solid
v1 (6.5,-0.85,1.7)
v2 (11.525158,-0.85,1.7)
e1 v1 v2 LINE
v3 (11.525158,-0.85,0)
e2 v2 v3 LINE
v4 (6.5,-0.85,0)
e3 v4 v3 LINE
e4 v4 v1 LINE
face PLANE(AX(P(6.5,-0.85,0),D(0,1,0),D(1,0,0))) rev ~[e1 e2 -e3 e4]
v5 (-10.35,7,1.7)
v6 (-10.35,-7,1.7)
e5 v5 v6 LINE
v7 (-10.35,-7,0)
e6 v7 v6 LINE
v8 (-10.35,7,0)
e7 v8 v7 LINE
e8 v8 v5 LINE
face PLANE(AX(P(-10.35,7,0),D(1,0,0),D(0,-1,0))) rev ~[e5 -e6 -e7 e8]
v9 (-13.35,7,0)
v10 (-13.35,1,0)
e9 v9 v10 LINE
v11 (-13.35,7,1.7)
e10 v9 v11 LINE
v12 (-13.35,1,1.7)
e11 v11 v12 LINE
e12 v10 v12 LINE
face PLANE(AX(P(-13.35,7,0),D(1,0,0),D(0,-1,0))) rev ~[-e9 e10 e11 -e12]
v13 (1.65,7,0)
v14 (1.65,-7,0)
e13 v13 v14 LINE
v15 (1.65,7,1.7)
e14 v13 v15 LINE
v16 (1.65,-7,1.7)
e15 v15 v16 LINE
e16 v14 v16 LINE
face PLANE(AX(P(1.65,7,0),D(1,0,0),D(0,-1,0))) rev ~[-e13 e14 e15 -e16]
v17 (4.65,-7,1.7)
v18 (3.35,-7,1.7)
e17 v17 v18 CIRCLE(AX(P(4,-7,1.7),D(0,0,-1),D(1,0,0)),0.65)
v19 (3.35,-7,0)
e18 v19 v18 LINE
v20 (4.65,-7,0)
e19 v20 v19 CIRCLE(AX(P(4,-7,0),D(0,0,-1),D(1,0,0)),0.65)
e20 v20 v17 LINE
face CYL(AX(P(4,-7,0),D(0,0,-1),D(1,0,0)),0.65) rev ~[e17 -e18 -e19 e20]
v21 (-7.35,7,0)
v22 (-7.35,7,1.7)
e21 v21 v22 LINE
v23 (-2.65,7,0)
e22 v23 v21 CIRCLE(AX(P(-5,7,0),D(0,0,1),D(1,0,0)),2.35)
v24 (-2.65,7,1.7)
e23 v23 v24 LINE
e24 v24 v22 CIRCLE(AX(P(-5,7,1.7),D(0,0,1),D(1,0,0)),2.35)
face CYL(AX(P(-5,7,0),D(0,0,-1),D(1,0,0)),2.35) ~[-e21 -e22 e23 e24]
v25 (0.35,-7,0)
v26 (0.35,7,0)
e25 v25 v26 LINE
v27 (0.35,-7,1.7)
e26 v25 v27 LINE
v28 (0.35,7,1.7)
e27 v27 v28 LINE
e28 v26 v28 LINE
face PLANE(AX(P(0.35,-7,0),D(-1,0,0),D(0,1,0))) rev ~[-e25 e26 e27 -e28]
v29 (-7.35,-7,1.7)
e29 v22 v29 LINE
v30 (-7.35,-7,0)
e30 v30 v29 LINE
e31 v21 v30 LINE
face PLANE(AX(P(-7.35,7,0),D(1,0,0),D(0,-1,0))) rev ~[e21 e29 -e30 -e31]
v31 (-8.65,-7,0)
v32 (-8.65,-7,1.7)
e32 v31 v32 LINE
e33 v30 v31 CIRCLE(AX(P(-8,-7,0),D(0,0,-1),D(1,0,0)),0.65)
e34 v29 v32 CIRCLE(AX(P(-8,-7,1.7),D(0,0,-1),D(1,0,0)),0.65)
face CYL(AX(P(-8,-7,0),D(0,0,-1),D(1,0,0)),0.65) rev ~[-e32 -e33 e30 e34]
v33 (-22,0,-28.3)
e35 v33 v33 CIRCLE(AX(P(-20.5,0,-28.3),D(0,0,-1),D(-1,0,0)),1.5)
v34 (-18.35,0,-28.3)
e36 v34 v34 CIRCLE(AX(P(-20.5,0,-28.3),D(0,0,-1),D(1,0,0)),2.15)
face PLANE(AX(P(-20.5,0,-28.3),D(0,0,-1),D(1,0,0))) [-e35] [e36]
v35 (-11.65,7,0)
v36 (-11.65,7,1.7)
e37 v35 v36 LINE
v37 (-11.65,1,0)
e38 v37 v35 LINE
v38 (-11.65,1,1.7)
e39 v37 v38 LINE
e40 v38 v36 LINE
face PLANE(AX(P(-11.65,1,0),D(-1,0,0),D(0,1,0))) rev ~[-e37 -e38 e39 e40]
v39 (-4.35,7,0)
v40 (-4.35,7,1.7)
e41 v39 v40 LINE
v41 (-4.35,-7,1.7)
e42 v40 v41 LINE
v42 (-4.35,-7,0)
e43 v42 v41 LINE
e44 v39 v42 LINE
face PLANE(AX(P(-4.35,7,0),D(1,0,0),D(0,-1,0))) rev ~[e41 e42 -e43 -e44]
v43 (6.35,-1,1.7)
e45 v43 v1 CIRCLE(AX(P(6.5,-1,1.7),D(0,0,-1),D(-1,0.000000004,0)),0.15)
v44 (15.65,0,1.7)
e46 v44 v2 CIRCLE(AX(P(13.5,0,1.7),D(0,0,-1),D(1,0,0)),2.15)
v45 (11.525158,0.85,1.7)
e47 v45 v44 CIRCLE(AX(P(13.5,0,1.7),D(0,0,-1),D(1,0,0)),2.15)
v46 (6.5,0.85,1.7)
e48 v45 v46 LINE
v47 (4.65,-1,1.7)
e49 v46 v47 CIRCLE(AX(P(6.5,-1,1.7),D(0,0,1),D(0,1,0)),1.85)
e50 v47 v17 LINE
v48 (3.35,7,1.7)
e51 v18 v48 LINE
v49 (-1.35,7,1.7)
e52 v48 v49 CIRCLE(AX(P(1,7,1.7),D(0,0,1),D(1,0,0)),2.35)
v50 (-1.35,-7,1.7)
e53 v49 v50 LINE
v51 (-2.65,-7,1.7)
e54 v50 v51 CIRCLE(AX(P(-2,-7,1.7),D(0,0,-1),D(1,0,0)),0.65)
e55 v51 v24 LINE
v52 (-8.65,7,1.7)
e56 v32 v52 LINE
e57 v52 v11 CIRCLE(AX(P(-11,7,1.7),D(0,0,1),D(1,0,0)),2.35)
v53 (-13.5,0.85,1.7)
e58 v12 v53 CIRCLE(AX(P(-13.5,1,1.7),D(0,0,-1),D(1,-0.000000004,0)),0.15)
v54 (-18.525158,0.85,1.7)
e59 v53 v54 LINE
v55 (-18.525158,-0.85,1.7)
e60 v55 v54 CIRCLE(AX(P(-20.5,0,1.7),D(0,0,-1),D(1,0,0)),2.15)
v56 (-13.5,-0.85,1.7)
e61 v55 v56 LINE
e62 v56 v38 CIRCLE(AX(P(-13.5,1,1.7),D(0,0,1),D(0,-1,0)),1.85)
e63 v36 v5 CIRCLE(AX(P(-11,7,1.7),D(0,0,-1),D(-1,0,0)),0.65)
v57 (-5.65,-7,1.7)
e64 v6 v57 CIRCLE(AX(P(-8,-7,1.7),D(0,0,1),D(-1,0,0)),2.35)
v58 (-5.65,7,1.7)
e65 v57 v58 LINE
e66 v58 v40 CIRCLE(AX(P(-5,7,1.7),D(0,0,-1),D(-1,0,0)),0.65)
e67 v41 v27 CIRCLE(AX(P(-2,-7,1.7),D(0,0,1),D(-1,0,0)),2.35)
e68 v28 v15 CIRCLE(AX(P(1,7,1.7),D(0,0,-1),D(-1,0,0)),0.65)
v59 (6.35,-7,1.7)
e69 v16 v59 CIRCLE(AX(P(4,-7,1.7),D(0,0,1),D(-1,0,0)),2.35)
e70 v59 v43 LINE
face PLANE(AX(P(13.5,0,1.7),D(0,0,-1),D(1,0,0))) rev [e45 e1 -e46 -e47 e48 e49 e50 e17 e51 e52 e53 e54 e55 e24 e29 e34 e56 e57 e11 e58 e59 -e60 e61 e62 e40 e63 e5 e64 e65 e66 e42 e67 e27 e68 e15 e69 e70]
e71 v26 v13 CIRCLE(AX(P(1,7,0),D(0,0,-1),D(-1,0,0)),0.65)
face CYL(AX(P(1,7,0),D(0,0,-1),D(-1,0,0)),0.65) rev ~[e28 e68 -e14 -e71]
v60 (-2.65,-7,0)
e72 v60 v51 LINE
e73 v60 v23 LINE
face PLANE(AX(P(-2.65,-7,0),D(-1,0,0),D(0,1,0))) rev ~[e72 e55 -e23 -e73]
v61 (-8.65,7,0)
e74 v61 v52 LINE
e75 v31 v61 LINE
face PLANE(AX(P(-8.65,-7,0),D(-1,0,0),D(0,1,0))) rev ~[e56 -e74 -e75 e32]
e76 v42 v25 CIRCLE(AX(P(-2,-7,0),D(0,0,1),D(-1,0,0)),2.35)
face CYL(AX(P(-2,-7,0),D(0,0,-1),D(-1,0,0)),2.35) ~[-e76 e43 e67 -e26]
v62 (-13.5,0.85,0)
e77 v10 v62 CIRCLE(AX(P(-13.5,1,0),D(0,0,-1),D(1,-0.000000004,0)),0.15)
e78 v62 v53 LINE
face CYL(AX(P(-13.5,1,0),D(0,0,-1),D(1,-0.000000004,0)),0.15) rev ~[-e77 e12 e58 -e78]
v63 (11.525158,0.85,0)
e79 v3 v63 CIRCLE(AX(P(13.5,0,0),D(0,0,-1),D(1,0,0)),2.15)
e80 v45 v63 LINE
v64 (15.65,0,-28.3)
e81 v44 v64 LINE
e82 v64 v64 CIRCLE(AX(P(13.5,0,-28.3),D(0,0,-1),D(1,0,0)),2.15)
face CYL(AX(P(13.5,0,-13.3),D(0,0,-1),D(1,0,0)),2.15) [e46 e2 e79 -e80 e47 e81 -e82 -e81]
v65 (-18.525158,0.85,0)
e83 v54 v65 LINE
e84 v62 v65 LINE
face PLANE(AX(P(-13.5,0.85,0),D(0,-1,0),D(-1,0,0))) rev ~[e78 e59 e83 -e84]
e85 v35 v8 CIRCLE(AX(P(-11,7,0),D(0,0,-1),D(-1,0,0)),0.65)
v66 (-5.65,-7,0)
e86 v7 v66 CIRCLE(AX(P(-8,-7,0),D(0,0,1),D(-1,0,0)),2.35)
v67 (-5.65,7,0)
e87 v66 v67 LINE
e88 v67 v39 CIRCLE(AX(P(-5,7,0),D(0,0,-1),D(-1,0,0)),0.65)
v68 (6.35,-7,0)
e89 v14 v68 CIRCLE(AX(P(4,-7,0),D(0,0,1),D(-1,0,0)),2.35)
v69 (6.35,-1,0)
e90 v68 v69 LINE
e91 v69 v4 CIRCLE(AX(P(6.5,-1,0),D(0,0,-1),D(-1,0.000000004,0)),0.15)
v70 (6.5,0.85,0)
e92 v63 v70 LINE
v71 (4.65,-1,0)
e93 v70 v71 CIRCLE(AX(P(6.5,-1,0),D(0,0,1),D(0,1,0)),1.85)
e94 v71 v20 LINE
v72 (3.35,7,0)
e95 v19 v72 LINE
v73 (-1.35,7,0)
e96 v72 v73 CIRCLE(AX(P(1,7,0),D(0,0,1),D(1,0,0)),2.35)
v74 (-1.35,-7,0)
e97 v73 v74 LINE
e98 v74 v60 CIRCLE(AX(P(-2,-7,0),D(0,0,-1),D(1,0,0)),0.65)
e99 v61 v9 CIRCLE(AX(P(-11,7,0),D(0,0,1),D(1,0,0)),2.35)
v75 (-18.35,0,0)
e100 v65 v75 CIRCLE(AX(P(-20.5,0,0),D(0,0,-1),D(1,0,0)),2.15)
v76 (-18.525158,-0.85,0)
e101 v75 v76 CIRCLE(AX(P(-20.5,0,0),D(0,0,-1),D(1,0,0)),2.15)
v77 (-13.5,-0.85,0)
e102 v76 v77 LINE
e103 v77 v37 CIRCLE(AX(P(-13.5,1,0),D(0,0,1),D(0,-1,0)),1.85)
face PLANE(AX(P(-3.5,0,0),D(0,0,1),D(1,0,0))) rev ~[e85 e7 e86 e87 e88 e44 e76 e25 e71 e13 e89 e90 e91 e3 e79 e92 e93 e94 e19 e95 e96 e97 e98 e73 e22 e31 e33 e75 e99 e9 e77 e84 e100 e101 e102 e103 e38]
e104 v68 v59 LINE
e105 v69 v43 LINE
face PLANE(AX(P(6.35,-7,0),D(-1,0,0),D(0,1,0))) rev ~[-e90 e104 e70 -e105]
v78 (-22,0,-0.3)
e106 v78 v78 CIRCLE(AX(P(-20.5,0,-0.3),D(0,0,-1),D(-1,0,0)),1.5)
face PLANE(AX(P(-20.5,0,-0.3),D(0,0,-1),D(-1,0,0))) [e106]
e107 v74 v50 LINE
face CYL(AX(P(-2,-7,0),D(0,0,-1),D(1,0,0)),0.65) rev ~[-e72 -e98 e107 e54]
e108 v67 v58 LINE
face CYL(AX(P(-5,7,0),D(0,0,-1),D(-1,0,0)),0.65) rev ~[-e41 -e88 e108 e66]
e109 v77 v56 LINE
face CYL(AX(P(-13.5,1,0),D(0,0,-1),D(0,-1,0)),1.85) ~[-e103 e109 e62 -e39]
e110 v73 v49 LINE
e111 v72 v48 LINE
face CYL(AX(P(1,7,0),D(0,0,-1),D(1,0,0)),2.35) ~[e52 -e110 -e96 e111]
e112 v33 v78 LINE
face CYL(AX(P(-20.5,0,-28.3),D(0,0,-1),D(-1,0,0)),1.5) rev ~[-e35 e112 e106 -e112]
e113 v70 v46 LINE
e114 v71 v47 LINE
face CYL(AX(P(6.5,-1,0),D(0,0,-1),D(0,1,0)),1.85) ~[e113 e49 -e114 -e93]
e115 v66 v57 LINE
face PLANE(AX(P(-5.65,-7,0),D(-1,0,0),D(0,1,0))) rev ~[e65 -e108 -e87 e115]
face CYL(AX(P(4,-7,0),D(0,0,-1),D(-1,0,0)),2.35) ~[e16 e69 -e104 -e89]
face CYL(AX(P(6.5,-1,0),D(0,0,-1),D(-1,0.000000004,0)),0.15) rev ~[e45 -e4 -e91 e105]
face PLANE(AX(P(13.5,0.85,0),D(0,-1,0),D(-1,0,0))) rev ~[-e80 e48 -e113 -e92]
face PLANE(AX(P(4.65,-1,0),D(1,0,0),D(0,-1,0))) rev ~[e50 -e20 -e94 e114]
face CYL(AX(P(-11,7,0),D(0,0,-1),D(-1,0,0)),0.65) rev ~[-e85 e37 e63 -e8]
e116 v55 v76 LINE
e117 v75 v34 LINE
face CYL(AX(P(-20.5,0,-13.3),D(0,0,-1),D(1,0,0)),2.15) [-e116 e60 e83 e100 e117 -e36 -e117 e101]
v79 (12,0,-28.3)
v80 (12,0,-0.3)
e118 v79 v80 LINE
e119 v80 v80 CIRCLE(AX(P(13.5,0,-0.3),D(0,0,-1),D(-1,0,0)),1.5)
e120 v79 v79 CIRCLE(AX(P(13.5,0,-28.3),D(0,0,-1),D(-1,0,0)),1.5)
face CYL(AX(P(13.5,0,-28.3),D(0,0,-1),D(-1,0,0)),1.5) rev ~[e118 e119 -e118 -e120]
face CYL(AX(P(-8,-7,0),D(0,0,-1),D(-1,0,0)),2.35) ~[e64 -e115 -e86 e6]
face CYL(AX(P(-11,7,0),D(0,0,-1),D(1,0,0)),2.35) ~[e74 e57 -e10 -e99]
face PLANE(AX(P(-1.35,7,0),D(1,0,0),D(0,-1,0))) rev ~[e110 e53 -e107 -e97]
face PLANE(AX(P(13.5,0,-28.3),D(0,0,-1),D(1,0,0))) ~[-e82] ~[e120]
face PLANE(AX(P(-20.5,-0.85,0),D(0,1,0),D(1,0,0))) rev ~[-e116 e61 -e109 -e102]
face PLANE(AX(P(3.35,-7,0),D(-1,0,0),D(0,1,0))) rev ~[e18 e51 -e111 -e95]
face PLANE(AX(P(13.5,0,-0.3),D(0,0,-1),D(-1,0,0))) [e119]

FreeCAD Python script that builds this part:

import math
import FreeCAD as App
import Part
import Sketcher
from FreeCAD import Vector

doc = App.newDocument("Part")
body = doc.addObject("PartDesign::Body", "Body")

# Sketch on XY plane
sketch1 = doc.addObject("Sketcher::SketchObject", "Sketch")
body.addObject(sketch1)
sketch1.AttachmentSupport = (doc.XY_Plane, [""])
sketch1.MapMode = "FlatFace"
sketch1.addGeometry([
    Part.LineSegment(Vector(-20.5, -0.85, 0), Vector(-13.5, -0.85, 0)),  # 0
    Part.ArcOfCircle(Part.Circle(Vector(-13.5, 1, 0), Vector(0, 0, 1), 1.85), math.radians(-90), math.radians(0)),  # 1
    Part.LineSegment(Vector(-11.65, 1, 0), Vector(-11.65, 7, 0)),  # 2
    Part.ArcOfCircle(Part.Circle(Vector(-11, 7, 0), Vector(0, 0, 1), 0.65), math.radians(0), math.radians(180)),  # 3
    Part.LineSegment(Vector(-10.35, 7, 0), Vector(-10.35, -7, 0)),  # 4
    Part.ArcOfCircle(Part.Circle(Vector(-8, -7, 0), Vector(0, 0, 1), 2.35), math.radians(180), math.radians(360)),  # 5
    Part.LineSegment(Vector(-5.65, -7, 0), Vector(-5.65, 7, 0)),  # 6
    Part.ArcOfCircle(Part.Circle(Vector(-5, 7, 0), Vector(0, 0, 1), 0.65), math.radians(0), math.radians(180)),  # 7
    Part.LineSegment(Vector(-4.35, 7, 0), Vector(-4.35, -7, 0)),  # 8
    Part.ArcOfCircle(Part.Circle(Vector(-2, -7, 0), Vector(0, 0, 1), 2.35), math.radians(180), math.radians(360)),  # 9
    Part.LineSegment(Vector(0.35, -7, 0), Vector(0.35, 7, 0)),  # 10
    Part.ArcOfCircle(Part.Circle(Vector(1, 7, 0), Vector(0, 0, 1), 0.65), math.radians(0), math.radians(180)),  # 11
    Part.LineSegment(Vector(1.65, 7, 0), Vector(1.65, -7, 0)),  # 12
    Part.ArcOfCircle(Part.Circle(Vector(4, -7, 0), Vector(0, 0, 1), 2.35), math.radians(180), math.radians(360)),  # 13
    Part.LineSegment(Vector(6.35, -7, 0), Vector(6.35, -1, 0)),  # 14
    Part.ArcOfCircle(Part.Circle(Vector(6.5, -1, 0), Vector(0, 0, 1), 0.15), math.radians(90), math.radians(180)),  # 15
    Part.LineSegment(Vector(6.5, -0.85, 0), Vector(13.5, -0.85, 0)),  # 16
    Part.ArcOfCircle(Part.Circle(Vector(13.5, 0, 0), Vector(0, 0, 1), 0.85), math.radians(-90), math.radians(90)),  # 17
    Part.LineSegment(Vector(13.5, 0.85, 0), Vector(6.5, 0.85, 0)),  # 18
    Part.ArcOfCircle(Part.Circle(Vector(6.5, -1, 0), Vector(0, 0, 1), 1.85), math.radians(90), math.radians(180)),  # 19
    Part.LineSegment(Vector(4.65, -1, 0), Vector(4.65, -7, 0)),  # 20
    Part.ArcOfCircle(Part.Circle(Vector(4, -7, 0), Vector(0, 0, 1), 0.65), math.radians(180), math.radians(360)),  # 21
    Part.LineSegment(Vector(3.35, -7, 0), Vector(3.35, 7, 0)),  # 22
    Part.ArcOfCircle(Part.Circle(Vector(1, 7, 0), Vector(0, 0, 1), 2.35), math.radians(0), math.radians(180)),  # 23
    Part.LineSegment(Vector(-1.35, 7, 0), Vector(-1.35, -7, 0)),  # 24
    Part.ArcOfCircle(Part.Circle(Vector(-2, -7, 0), Vector(0, 0, 1), 0.65), math.radians(180), math.radians(360)),  # 25
    Part.LineSegment(Vector(-2.65, -7, 0), Vector(-2.65, 7, 0)),  # 26
    Part.ArcOfCircle(Part.Circle(Vector(-5, 7, 0), Vector(0, 0, 1), 2.35), math.radians(0), math.radians(180)),  # 27
    Part.LineSegment(Vector(-7.35, 7, 0), Vector(-7.35, -7, 0)),  # 28
    Part.ArcOfCircle(Part.Circle(Vector(-8, -7, 0), Vector(0, 0, 1), 0.65), math.radians(180), math.radians(360)),  # 29
    Part.LineSegment(Vector(-8.65, -7, 0), Vector(-8.65, 7, 0)),  # 30
    Part.ArcOfCircle(Part.Circle(Vector(-11, 7, 0), Vector(0, 0, 1), 2.35), math.radians(0), math.radians(180)),  # 31
    Part.LineSegment(Vector(-13.35, 7, 0), Vector(-13.35, 1, 0)),  # 32
    Part.ArcOfCircle(Part.Circle(Vector(-13.5, 1, 0), Vector(0, 0, 1), 0.15), math.radians(-90), math.radians(0)),  # 33
    Part.LineSegment(Vector(-13.5, 0.85, 0), Vector(-20.5, 0.85, 0)),  # 34
    Part.ArcOfCircle(Part.Circle(Vector(-20.5, 0, 0), Vector(0, 0, 1), 0.85), math.radians(90), math.radians(270)),  # 35
], False)
sketch1.addConstraint([
    Sketcher.Constraint("Tangent", 0, 2, 1, 1),
    Sketcher.Constraint("Tangent", 1, 2, 2, 1),
    Sketcher.Constraint("Tangent", 2, 2, 3, 2),
    Sketcher.Constraint("Tangent", 3, 1, 4, 1),
    Sketcher.Constraint("Tangent", 4, 2, 5, 1),
    Sketcher.Constraint("Tangent", 5, 2, 6, 1),
    Sketcher.Constraint("Tangent", 6, 2, 7, 2),
    Sketcher.Constraint("Tangent", 7, 1, 8, 1),
    Sketcher.Constraint("Tangent", 8, 2, 9, 1),
    Sketcher.Constraint("Tangent", 9, 2, 10, 1),
    Sketcher.Constraint("Tangent", 10, 2, 11, 2),
    Sketcher.Constraint("Tangent", 11, 1, 12, 1),
    Sketcher.Constraint("Tangent", 12, 2, 13, 1),
    Sketcher.Constraint("Tangent", 13, 2, 14, 1),
    Sketcher.Constraint("Tangent", 14, 2, 15, 2),
    Sketcher.Constraint("Tangent", 15, 1, 16, 1),
    Sketcher.Constraint("Tangent", 16, 2, 17, 1),
    Sketcher.Constraint("Tangent", 17, 2, 18, 1),
    Sketcher.Constraint("Tangent", 18, 2, 19, 1),
    Sketcher.Constraint("Tangent", 19, 2, 20, 1),
    Sketcher.Constraint("Tangent", 20, 2, 21, 2),
    Sketcher.Constraint("Tangent", 21, 1, 22, 1),
    Sketcher.Constraint("Tangent", 22, 2, 23, 1),
    Sketcher.Constraint("Tangent", 23, 2, 24, 1),
    Sketcher.Constraint("Tangent", 24, 2, 25, 2),
    Sketcher.Constraint("Tangent", 25, 1, 26, 1),
    Sketcher.Constraint("Tangent", 26, 2, 27, 1),
    Sketcher.Constraint("Tangent", 27, 2, 28, 1),
    Sketcher.Constraint("Tangent", 28, 2, 29, 2),
    Sketcher.Constraint("Tangent", 29, 1, 30, 1),
    Sketcher.Constraint("Tangent", 30, 2, 31, 1),
    Sketcher.Constraint("Tangent", 31, 2, 32, 1),
    Sketcher.Constraint("Tangent", 32, 2, 33, 2),
    Sketcher.Constraint("Tangent", 33, 1, 34, 1),
    Sketcher.Constraint("Tangent", 34, 2, 35, 1),
    Sketcher.Constraint("Tangent", 35, 2, 0, 1),
    Sketcher.Constraint("Horizontal", 0),
    Sketcher.Constraint("Vertical", 2),
    Sketcher.Constraint("Vertical", 4),
    Sketcher.Constraint("Vertical", 6),
    Sketcher.Constraint("Vertical", 8),
    Sketcher.Constraint("Vertical", 10),
    Sketcher.Constraint("Vertical", 12),
    Sketcher.Constraint("Vertical", 14),
    Sketcher.Constraint("Horizontal", 16),
    Sketcher.Constraint("Horizontal", 18),
    Sketcher.Constraint("Vertical", 20),
    Sketcher.Constraint("Vertical", 22),
    Sketcher.Constraint("Vertical", 24),
    Sketcher.Constraint("Vertical", 26),
    Sketcher.Constraint("Vertical", 28),
    Sketcher.Constraint("Vertical", 30),
    Sketcher.Constraint("Vertical", 32),
    Sketcher.Constraint("Horizontal", 34),
    Sketcher.Constraint("Coincident", 19, 3, 15, 3),
    Sketcher.Constraint("Coincident", 21, 3, 13, 3),
    Sketcher.Constraint("Coincident", 23, 3, 11, 3),
    Sketcher.Constraint("Coincident", 25, 3, 9, 3),
    Sketcher.Constraint("Coincident", 27, 3, 7, 3),
    Sketcher.Constraint("Coincident", 29, 3, 5, 3),
    Sketcher.Constraint("Coincident", 31, 3, 3, 3),
    Sketcher.Constraint("Coincident", 33, 3, 1, 3),
    Sketcher.Constraint("Equal", 3, 7),
    Sketcher.Constraint("Equal", 5, 9),
    Sketcher.Constraint("Equal", 7, 11),
    Sketcher.Constraint("Equal", 9, 13),
    Sketcher.Constraint("Equal", 1, 19),
    Sketcher.Constraint("Equal", 11, 21),
    Sketcher.Constraint("Symmetric", 0, 2, 17, 2, -1, 1),
    Sketcher.Constraint("PointOnObject", 17, 3, -1),
    Sketcher.Constraint("Horizontal", 3, 3, 7, 3),
    Sketcher.Constraint("Horizontal", 5, 3, 9, 3),
    Sketcher.Constraint("Horizontal", 7, 3, 11, 3),
    Sketcher.Constraint("Horizontal", 9, 3, 13, 3),
    Sketcher.Constraint("Equal", 0, 16),
    Sketcher.Constraint("Equal", 2, 14),
    Sketcher.Constraint("DistanceX", 0, 1, 0, 2, 7.0),
    Sketcher.Constraint("DistanceY", 2, 1, 2, 2, 6.0),
    Sketcher.Constraint("DistanceY", 4, 2, 4, 1, 14.0),
    Sketcher.Constraint("Radius", 1, 1.85),
    Sketcher.Constraint("Radius", 3, 0.65),
])
pad1 = doc.addObject("PartDesign::Pad", "Pad")
body.addObject(pad1)
pad1.Profile = sketch1
pad1.Length = 1.7

# Sketch on XZ plane
sketch2 = doc.addObject("Sketcher::SketchObject", "Sketch001")
body.addObject(sketch2)
sketch2.AttachmentSupport = (doc.XZ_Plane, [""])
sketch2.MapMode = "FlatFace"
sketch2.addGeometry([
    Part.LineSegment(Vector(-22.6, -28.3, 0), Vector(-22.6, 1.7, 0)),
    Part.LineSegment(Vector(-22.6, 1.7, 0), Vector(-20.5, 1.7, 0)),
    Part.LineSegment(Vector(-20.5, 1.7, 0), Vector(-20.5, -28.3, 0)),
    Part.LineSegment(Vector(-20.5, -28.3, 0), Vector(-22.6, -28.3, 0)),
], False)
sketch2.addGeometry(Part.LineSegment(Vector(-20.5, 1.7, 0), Vector(-20.5, -28.3, 0)), True)  # axis
sketch2.addConstraint([
    Sketcher.Constraint("Coincident", 0, 2, 1, 1),
    Sketcher.Constraint("Coincident", 1, 2, 2, 1),
    Sketcher.Constraint("Coincident", 2, 2, 3, 1),
    Sketcher.Constraint("Coincident", 3, 2, 0, 1),
    Sketcher.Constraint("Vertical", 0),
    Sketcher.Constraint("Horizontal", 1),
    Sketcher.Constraint("Vertical", 2),
    Sketcher.Constraint("Horizontal", 3),
    Sketcher.Constraint("Vertical", 4),
    Sketcher.Constraint("Coincident", 4, 1, 1, 2),
    Sketcher.Constraint("Horizontal", 3, 2, 4, 2),
    Sketcher.Constraint("DistanceY", 0, 1, 0, 2, 30.0),
    Sketcher.Constraint("DistanceX", 1, 1, 1, 2, 2.15),
    Sketcher.Constraint("DistanceY", -1, 1, 0, 2, 1.7),
    Sketcher.Constraint("DistanceX", 1, 2, -1, 1, 20.5),
])
revolution = doc.addObject("PartDesign::Revolution", "Revolution")
body.addObject(revolution)
revolution.Profile = sketch2
revolution.ReferenceAxis = (sketch2, ["Axis0"])
revolution.Angle = 360

# Sketch on XZ plane
sketch3 = doc.addObject("Sketcher::SketchObject", "Sketch002")
body.addObject(sketch3)
sketch3.AttachmentSupport = (doc.XZ_Plane, [""])
sketch3.MapMode = "FlatFace"
sketch3.addGeometry([
    Part.LineSegment(Vector(13.5, -28.3, 0), Vector(13.5, 1.7, 0)),
    Part.LineSegment(Vector(13.5, 1.7, 0), Vector(15.7, 1.7, 0)),
    Part.LineSegment(Vector(15.7, 1.7, 0), Vector(15.7, -28.3, 0)),
    Part.LineSegment(Vector(15.7, -28.3, 0), Vector(13.5, -28.3, 0)),
], False)
sketch3.addGeometry(Part.LineSegment(Vector(13.5, 1.7, 0), Vector(13.5, -28.3, 0)), True)  # axis
sketch3.addConstraint([
    Sketcher.Constraint("Coincident", 0, 2, 1, 1),
    Sketcher.Constraint("Coincident", 1, 2, 2, 1),
    Sketcher.Constraint("Coincident", 2, 2, 3, 1),
    Sketcher.Constraint("Coincident", 3, 2, 0, 1),
    Sketcher.Constraint("Vertical", 0),
    Sketcher.Constraint("Horizontal", 1),
    Sketcher.Constraint("Vertical", 2),
    Sketcher.Constraint("Horizontal", 3),
    Sketcher.Constraint("Vertical", 4),
    Sketcher.Constraint("Coincident", 4, 1, 0, 2),
    Sketcher.Constraint("Horizontal", 2, 2, 4, 2),
    Sketcher.Constraint("DistanceY", 0, 1, 0, 2, 30.0),
    Sketcher.Constraint("DistanceX", 1, 1, 1, 2, 2.15),
    Sketcher.Constraint("DistanceX", -1, 1, 0, 2, 13.5),
    Sketcher.Constraint("DistanceY", -1, 1, 0, 2, 1.7),
])
revolution2 = doc.addObject("PartDesign::Revolution", "Revolution001")
body.addObject(revolution2)
revolution2.Profile = sketch3
revolution2.ReferenceAxis = (sketch3, ["Axis0"])
revolution2.Angle = 360

# Sketch on XY plane
sketch4 = doc.addObject("Sketcher::SketchObject", "Sketch003")
body.addObject(sketch4)
sketch4.AttachmentSupport = (doc.XY_Plane, [""])
sketch4.MapMode = "FlatFace"
sketch4.AttachmentOffset = App.Placement(Vector(0, 0, -28.3), App.Rotation())
sketch4.addGeometry([
    Part.Circle(Vector(13.5, 0, 0), Vector(0, 0, 1), 1.5),
    Part.Circle(Vector(-20.5, 0, 0), Vector(0, 0, 1), 1.5),
], False)
sketch4.addConstraint([
    Sketcher.Constraint("Equal", 0, 1),
    Sketcher.Constraint("PointOnObject", 0, 3, -1),
    Sketcher.Constraint("PointOnObject", 1, 3, -1),
    Sketcher.Constraint("Diameter", 0, 3.0),
    Sketcher.Constraint("DistanceX", 1, 3, 0, 3, 34.0),
    Sketcher.Constraint("DistanceX", -1, 1, 0, 3, 13.5),
])
pocket1 = doc.addObject("PartDesign::Pocket", "Pocket")
body.addObject(pocket1)
pocket1.Profile = sketch4
pocket1.Length = 28
pocket1.Reversed = True

doc.recompute()
